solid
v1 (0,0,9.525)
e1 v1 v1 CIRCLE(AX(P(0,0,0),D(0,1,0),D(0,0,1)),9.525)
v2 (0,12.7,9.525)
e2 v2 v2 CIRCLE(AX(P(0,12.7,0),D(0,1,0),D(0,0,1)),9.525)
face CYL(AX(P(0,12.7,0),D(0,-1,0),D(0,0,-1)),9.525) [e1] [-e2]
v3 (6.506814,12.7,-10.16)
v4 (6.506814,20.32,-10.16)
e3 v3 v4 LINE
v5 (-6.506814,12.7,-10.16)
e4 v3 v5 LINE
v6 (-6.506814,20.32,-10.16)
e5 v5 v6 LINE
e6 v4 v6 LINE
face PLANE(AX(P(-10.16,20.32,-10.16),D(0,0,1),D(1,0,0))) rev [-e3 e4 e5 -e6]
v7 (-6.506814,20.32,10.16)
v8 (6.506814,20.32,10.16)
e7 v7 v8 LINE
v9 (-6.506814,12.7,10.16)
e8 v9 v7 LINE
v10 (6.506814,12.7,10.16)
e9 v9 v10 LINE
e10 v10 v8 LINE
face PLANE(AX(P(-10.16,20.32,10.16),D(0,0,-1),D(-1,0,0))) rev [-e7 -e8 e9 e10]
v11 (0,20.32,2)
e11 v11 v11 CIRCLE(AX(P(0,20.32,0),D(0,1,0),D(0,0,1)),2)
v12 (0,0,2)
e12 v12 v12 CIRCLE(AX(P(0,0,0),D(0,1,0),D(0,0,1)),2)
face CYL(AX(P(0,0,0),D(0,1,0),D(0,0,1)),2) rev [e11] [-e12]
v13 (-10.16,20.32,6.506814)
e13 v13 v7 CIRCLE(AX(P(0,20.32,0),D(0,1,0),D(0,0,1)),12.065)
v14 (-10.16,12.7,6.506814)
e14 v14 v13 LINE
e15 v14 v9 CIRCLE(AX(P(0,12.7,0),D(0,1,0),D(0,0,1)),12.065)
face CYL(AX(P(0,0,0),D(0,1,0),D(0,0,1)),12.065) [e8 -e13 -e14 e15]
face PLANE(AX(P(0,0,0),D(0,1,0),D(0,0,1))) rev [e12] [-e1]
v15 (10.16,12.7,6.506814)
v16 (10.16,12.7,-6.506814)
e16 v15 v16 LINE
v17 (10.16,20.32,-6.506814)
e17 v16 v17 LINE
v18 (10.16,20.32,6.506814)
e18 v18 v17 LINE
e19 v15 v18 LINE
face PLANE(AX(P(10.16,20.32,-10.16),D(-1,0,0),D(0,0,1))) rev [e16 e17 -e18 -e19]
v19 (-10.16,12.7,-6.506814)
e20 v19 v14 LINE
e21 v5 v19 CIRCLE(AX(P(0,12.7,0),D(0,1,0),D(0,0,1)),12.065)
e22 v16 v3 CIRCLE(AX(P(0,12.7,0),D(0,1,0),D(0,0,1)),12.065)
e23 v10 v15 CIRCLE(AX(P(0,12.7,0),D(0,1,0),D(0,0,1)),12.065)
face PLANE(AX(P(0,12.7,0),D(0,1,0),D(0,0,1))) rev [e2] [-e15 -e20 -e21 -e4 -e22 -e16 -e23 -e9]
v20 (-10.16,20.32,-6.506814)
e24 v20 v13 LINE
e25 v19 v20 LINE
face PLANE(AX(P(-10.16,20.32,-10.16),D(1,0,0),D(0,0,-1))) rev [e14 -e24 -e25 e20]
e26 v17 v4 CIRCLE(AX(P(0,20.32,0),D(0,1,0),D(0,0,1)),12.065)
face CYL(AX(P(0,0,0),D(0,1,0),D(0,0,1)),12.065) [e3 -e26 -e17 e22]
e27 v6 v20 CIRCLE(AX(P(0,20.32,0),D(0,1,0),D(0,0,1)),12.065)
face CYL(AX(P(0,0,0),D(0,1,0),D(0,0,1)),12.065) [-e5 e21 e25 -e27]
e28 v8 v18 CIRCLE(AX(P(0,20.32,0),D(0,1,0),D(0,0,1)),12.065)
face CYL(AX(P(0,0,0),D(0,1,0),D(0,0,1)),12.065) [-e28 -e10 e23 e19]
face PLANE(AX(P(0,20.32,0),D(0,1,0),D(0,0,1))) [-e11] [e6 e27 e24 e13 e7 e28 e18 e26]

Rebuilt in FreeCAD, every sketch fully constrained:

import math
import FreeCAD as App
import Part
import Sketcher

V = App.Vector
Q = App.Units.Quantity

doc = App.newDocument("Part")
body = doc.addObject("PartDesign::Body", "Body")

# Sketch on XZ plane
sketch1 = body.newObject("Sketcher::SketchObject", "Sketch")
sketch1.AttachmentSupport = (doc.getObject("XZ_Plane"), [""])
sketch1.MapMode = "FlatFace"
sketch1.addGeometry(Part.Circle(V(0, 0, 0), V(0, 0, 1), 10), False)
sketch1.addConstraint([
    Sketcher.Constraint("Coincident", 0, 3, -1, 1),
    Sketcher.Constraint("Diameter", 0, Q("0.75 in")),
])
pad1 = body.newObject("PartDesign::Pad", "Pad")
pad1.Profile = sketch1
pad1.Length = Q("0.5 in")
pad1.Reversed = True

# Sketch on XZ plane
sketch2 = body.newObject("Sketcher::SketchObject", "Sketch001")
sketch2.AttachmentSupport = (doc.getObject("XZ_Plane"), [""])
sketch2.MapMode = "FlatFace"
sketch2.AttachmentOffset = App.Placement(V(0, 0, -0.5 * 25.4), App.Rotation())
sketch2.addGeometry([
    Part.LineSegment(V(-10, -10, 0), V(-10, 10, 0)),
    Part.LineSegment(V(-10, 10, 0), V(10, 10, 0)),
    Part.LineSegment(V(10, 10, 0), V(10, -10, 0)),
    Part.LineSegment(V(10, -10, 0), V(-10, -10, 0)),
], False)
sketch2.addConstraint([
    Sketcher.Constraint("Coincident", 0, 2, 1, 1),
    Sketcher.Constraint("Coincident", 1, 2, 2, 1),
    Sketcher.Constraint("Coincident", 2, 2, 3, 1),
    Sketcher.Constraint("Coincident", 3, 2, 0, 1),
    Sketcher.Constraint("Vertical", 0),
    Sketcher.Constraint("Horizontal", 1),
    Sketcher.Constraint("Vertical", 2),
    Sketcher.Constraint("Horizontal", 3),
    Sketcher.Constraint("Symmetric", 0, 2, 2, 2, -1, 1),
    Sketcher.Constraint("Equal", 3, 0),
    Sketcher.Constraint("DistanceX", 1, 1, 1, 2, Q("0.8 in")),
])
pad2 = body.newObject("PartDesign::Pad", "Pad001")
pad2.Profile = sketch2
pad2.Length = Q("0.3 in")
pad2.Reversed = True

# Sketch on XZ plane
sketch3 = body.newObject("Sketcher::SketchObject", "Sketch002")
sketch3.AttachmentSupport = (doc.getObject("XZ_Plane"), [""])
sketch3.MapMode = "FlatFace"
sketch3.AttachmentOffset = App.Placement(V(0, 0, -0.8 * 25.4), App.Rotation())
sketch3.addGeometry([
    Part.LineSegment(V(-6.5, -10.2, 0), V(-10.2, -10.2, 0)),  # 0
    Part.LineSegment(V(-10.2, -10.2, 0), V(-10.2, -6.5, 0)),  # 1
    Part.ArcOfCircle(Part.Circle(V(0, 0, 0), V(0, 0, 1), 12.1), math.radians(-147), math.radians(-123)),  # 2
    Part.LineSegment(V(10.2, -10.2, 0), V(6.5, -10.2, 0)),  # 3
    Part.ArcOfCircle(Part.Circle(V(0, 0, 0), V(0, 0, 1), 12.1), math.radians(-57), math.radians(-33)),  # 4
    Part.LineSegment(V(10.2, -6.5, 0), V(10.2, -10.2, 0)),  # 5
    Part.LineSegment(V(10.2, 10.2, 0), V(10.2, 6.5, 0)),  # 6
    Part.ArcOfCircle(Part.Circle(V(0, 0, 0), V(0, 0, 1), 12.1), math.radians(33), math.radians(57)),  # 7
    Part.LineSegment(V(6.5, 10.2, 0), V(10.2, 10.2, 0)),  # 8
    Part.ArcOfCircle(Part.Circle(V(0, 0, 0), V(0, 0, 1), 12.1), math.radians(123), math.radians(147)),  # 9
    Part.LineSegment(V(-10.2, 6.5, 0), V(-10.2, 10.2, 0)),  # 10
    Part.LineSegment(V(-10.2, 10.2, 0), V(-6.5, 10.2, 0)),  # 11
], False)
sketch3.addConstraint([
    Sketcher.Constraint("Coincident", 0, 2, 1, 1),
    Sketcher.Constraint("Coincident", 1, 2, 2, 1),
    Sketcher.Constraint("Coincident", 2, 2, 0, 1),
    Sketcher.Constraint("Coincident", 3, 2, 4, 1),
    Sketcher.Constraint("Coincident", 4, 2, 5, 1),
    Sketcher.Constraint("Coincident", 5, 2, 3, 1),
    Sketcher.Constraint("Coincident", 6, 2, 7, 1),
    Sketcher.Constraint("Coincident", 7, 2, 8, 1),
    Sketcher.Constraint("Coincident", 8, 2, 6, 1),
    Sketcher.Constraint("Coincident", 9, 2, 10, 1),
    Sketcher.Constraint("Coincident", 10, 2, 11, 1),
    Sketcher.Constraint("Coincident", 11, 2, 9, 1),
    Sketcher.Constraint("Horizontal", 0),
    Sketcher.Constraint("Vertical", 1),
    Sketcher.Constraint("Horizontal", 3),
    Sketcher.Constraint("Vertical", 5),
    Sketcher.Constraint("Vertical", 6),
    Sketcher.Constraint("Horizontal", 8),
    Sketcher.Constraint("Vertical", 10),
    Sketcher.Constraint("Horizontal", 11),
    Sketcher.Constraint("Coincident", 2, 3, -1, 1),
    Sketcher.Constraint("Coincident", 4, 3, -1, 1),
    Sketcher.Constraint("Coincident", 7, 3, -1, 1),
    Sketcher.Constraint("Coincident", 9, 3, -1, 1),
    Sketcher.Constraint("Equal", 2, 4),
    Sketcher.Constraint("Equal", 4, 7),
    Sketcher.Constraint("Equal", 7, 9),
    Sketcher.Constraint("Symmetric", 0, 2, 8, 2, -1, 1),
    Sketcher.Constraint("Symmetric", 5, 2, 10, 2, -1, 1),
    Sketcher.Constraint("Symmetric", 0, 2, 5, 2, -2),
    Sketcher.Constraint("Equal", 11, 1),
    Sketcher.Constraint("Radius", 2, Q("0.475 in")),
    Sketcher.Constraint("DistanceX", 0, 2, -1, 1, Q("0.4 in")),
])
pocket1 = body.newObject("PartDesign::Pocket", "Pocket")
pocket1.Profile = sketch3
pocket1.Type = "ThroughAll"
pocket1.Reversed = True

# Sketch on XZ plane
sketch4 = body.newObject("Sketcher::SketchObject", "Sketch003")
sketch4.AttachmentSupport = (doc.getObject("XZ_Plane"), [""])
sketch4.MapMode = "FlatFace"
sketch4.AttachmentOffset = App.Placement(V(0, 0, -0.8 * 25.4), App.Rotation())
sketch4.addGeometry(Part.Circle(V(0, 0, 0), V(0, 0, 1), 2), False)
sketch4.addConstraint([
    Sketcher.Constraint("Coincident", 0, 3, -1, 1),
    Sketcher.Constraint("Diameter", 0, Q("4 mm")),
])
pocket2 = body.newObject("PartDesign::Pocket", "Pocket001")
pocket2.Profile = sketch4
pocket2.Type = "ThroughAll"
pocket2.Reversed = True

doc.recompute()
